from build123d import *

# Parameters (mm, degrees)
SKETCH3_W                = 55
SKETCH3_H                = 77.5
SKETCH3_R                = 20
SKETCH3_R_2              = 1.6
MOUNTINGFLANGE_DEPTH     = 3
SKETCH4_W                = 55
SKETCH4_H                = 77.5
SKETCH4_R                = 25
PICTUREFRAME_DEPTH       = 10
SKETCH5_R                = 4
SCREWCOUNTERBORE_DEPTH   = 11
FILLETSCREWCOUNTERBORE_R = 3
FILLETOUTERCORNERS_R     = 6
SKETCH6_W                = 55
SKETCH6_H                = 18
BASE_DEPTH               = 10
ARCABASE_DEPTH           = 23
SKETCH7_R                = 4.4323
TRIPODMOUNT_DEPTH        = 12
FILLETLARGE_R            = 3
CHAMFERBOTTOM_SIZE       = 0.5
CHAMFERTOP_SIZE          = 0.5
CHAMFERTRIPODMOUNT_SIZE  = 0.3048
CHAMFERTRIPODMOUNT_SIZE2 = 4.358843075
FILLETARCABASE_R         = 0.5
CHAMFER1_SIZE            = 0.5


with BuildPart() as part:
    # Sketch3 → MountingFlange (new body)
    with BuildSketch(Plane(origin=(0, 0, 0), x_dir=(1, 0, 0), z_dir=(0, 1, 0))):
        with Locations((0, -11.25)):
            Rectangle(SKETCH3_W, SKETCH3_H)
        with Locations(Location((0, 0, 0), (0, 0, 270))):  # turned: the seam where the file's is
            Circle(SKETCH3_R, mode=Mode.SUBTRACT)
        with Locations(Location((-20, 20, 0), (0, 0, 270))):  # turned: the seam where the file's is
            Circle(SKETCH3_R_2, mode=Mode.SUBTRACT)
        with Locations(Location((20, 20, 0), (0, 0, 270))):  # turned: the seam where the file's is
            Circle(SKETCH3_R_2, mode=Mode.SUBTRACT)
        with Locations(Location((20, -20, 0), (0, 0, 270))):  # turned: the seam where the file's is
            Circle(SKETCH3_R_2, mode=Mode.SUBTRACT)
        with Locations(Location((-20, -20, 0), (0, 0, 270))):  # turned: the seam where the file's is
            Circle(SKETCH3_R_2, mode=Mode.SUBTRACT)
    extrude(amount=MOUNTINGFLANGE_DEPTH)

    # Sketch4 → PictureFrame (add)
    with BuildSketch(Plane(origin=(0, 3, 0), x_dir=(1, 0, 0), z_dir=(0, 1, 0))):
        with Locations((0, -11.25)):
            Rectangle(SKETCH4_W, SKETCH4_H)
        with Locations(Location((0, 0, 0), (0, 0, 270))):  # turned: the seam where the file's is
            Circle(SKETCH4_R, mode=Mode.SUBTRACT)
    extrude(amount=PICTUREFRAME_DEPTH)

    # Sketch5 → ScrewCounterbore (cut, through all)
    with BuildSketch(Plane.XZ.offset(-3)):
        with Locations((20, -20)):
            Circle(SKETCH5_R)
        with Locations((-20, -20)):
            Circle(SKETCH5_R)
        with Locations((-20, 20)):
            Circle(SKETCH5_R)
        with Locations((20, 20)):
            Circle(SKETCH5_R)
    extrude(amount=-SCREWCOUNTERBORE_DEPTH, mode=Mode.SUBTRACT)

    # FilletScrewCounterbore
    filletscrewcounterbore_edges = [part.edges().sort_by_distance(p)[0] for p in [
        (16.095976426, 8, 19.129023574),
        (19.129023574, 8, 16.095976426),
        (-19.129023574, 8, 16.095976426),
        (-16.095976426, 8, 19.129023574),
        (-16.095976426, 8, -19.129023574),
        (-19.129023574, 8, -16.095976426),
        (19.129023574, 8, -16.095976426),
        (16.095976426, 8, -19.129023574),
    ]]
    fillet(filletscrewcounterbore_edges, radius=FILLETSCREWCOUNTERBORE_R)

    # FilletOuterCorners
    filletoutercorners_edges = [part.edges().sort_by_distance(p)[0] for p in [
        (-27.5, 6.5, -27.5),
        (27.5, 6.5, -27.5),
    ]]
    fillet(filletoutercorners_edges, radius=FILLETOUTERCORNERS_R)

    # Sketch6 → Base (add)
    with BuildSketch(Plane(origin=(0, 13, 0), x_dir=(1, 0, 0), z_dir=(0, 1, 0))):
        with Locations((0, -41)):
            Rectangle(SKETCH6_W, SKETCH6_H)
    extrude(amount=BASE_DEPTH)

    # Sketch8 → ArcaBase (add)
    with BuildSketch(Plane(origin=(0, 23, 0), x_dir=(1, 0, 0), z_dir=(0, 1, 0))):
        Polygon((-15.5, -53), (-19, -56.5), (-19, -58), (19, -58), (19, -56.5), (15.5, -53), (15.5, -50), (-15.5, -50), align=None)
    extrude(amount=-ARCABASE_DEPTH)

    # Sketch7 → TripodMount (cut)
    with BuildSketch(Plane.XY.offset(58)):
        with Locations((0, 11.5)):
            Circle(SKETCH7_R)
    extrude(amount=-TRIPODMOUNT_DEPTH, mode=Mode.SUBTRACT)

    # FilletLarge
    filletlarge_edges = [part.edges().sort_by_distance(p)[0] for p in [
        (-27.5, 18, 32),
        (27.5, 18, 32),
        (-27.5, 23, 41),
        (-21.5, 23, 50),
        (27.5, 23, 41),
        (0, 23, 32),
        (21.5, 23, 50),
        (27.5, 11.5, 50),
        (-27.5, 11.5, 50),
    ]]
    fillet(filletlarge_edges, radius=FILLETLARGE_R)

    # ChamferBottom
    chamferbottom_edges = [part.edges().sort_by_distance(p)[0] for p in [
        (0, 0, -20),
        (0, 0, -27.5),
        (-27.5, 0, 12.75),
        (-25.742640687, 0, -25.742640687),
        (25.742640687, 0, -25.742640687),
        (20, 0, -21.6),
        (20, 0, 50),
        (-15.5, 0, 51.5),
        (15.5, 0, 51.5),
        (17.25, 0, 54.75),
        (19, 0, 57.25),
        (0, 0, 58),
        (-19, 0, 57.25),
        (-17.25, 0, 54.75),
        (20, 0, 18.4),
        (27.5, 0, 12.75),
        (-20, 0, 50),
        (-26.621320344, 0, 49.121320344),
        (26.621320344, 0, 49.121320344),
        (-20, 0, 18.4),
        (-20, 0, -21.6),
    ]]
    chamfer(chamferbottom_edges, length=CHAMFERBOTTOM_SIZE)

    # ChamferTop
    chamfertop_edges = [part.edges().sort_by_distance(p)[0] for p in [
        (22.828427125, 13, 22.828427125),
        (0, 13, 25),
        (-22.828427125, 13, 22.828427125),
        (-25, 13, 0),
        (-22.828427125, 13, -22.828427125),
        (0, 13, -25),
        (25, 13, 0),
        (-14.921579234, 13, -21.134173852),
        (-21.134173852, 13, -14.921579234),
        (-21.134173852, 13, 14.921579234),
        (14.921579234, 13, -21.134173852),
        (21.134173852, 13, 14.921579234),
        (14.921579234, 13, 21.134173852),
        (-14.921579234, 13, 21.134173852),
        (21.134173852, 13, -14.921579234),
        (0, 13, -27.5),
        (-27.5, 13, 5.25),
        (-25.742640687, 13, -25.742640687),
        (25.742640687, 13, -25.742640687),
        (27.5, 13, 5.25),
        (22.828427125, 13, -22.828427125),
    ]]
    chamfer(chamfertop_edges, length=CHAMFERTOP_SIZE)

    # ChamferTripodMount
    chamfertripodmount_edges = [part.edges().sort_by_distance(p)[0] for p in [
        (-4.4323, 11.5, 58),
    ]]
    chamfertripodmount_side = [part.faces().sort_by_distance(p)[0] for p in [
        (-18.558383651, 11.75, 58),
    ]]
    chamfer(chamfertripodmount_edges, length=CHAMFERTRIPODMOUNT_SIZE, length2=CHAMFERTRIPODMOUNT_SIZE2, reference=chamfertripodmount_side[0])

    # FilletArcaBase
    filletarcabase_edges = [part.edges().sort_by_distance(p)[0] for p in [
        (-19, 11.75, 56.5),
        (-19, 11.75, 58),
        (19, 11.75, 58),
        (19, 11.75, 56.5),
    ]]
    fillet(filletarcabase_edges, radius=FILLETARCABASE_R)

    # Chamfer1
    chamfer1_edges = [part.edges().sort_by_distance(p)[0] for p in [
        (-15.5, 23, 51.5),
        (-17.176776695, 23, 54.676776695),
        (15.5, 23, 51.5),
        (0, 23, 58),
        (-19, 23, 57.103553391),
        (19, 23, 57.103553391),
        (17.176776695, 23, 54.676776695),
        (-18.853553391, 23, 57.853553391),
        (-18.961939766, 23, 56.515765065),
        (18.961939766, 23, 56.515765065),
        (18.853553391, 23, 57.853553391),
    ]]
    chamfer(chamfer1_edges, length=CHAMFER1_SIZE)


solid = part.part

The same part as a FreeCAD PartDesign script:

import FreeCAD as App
import Part
import Sketcher
Q = App.Units.Quantity


def edges_at(feature, points):
    """Names of the edges that pass closest to the given points."""
    edges = feature.Shape.Edges
    near = lambda p: min(range(len(edges)), key=lambda i: edges[i].distToShape(Part.Vertex(*p))[0])
    return sorted({f"Edge{near(p) + 1}" for p in points})

doc = App.newDocument("Part")
params = doc.addObject("Spreadsheet::Sheet", "Params")
for row, (alias, value) in enumerate([
    ("sketch1_diameter", "40 mm"),
    ("sketch1_diameter2", "3.2 mm"),
    ("sketch1_width", "55 mm"),
    ("sketch1_height", "77.5 mm"),
    ("pad1_length", "3 mm"),
    ("sketch2_diameter", "50 mm"),
    ("sketch2_width", "55 mm"),
    ("sketch2_height", "77.5 mm"),
    ("pad2_length", "10 mm"),
    ("sketch3_diameter", "8 mm"),
    ("fillet_radius", "3 mm"),
    ("fillet2_radius", "6 mm"),
    ("sketch4_width", "55 mm"),
    ("sketch4_height", "18 mm"),
    ("pad3_length", "10 mm"),
    ("sketch5_width", "38 mm"),
    ("sketch5_width2", "31 mm"),
    ("sketch5_height", "3 mm"),
    ("sketch5_height2", "1.5 mm"),
    ("pad4_length", "23 mm"),
    ("pocket2_length", "12 mm"),
    ("fillet3_radius", "3 mm"),
    ("chamfer_size", "0.5 mm"),
    ("chamfer2_size", "0.5 mm"),
    ("chamfer3_size", "0.3048 mm"),
    ("chamfer3_size2", "4.358843 mm"),
    ("fillet4_radius", "0.5 mm"),
    ("chamfer4_size", "0.5 mm"),
], start=1):
    params.set(f"A{row}", alias)
    params.set(f"B{row}", "=" + value)
    params.setAlias(f"B{row}", alias)

body = doc.addObject("PartDesign::Body", "Body")

# Sketch on XZ plane
sketch1 = body.newObject("Sketcher::SketchObject", "Sketch")
sketch1.AttachmentSupport = (doc.getObject("XZ_Plane"), [""])
sketch1.MapMode = "FlatFace"
sketch1.addGeometry([
    Part.LineSegment(App.Vector(-27.5, -27.5, 0), App.Vector(-27.5, 50, 0)),  # 0
    Part.LineSegment(App.Vector(-27.5, 50, 0), App.Vector(27.5, 50, 0)),  # 1
    Part.LineSegment(App.Vector(27.5, 50, 0), App.Vector(27.5, -27.5, 0)),  # 2
    Part.LineSegment(App.Vector(27.5, -27.5, 0), App.Vector(-27.5, -27.5, 0)),  # 3
    Part.Circle(App.Vector(-20, 20, 0), App.Vector(0, 0, 1), 1.6),  # 4
    Part.Circle(App.Vector(20, 20, 0), App.Vector(0, 0, 1), 1.6),  # 5
    Part.Circle(App.Vector(-20, -20, 0), App.Vector(0, 0, 1), 1.6),  # 6
    Part.Circle(App.Vector(0, 0, 0), App.Vector(0, 0, 1), 20),  # 7
    Part.Circle(App.Vector(20, -20, 0), App.Vector(0, 0, 1), 1.6),  # 8
], False)
sketch1.addConstraint([
    Sketcher.Constraint("Coincident", 0, 2, 1, 1),
    Sketcher.Constraint("Coincident", 1, 2, 2, 1),
    Sketcher.Constraint("Coincident", 2, 2, 3, 1),
    Sketcher.Constraint("Coincident", 3, 2, 0, 1),
    Sketcher.Constraint("Vertical", 0),
    Sketcher.Constraint("Horizontal", 1),
    Sketcher.Constraint("Vertical", 2),
    Sketcher.Constraint("Horizontal", 3),
    Sketcher.Constraint("Coincident", 7, 3, -1, 1),
    Sketcher.Constraint("Equal", 4, 5),
    Sketcher.Constraint("Equal", 5, 6),
    Sketcher.Constraint("Equal", 6, 8),
    Sketcher.Constraint("Symmetric", 5, 3, 6, 3, -1, 1),
    Sketcher.Constraint("Symmetric", 4, 3, 8, 3, -1, 1),
    Sketcher.Constraint("Symmetric", 4, 3, 5, 3, -2),
    Sketcher.Constraint("Diameter", 7, Q("40 mm")),
    Sketcher.Constraint("Diameter", 4, Q("3.2 mm")),
    Sketcher.Constraint("DistanceX", 1, 1, 1, 2, Q("55 mm")),
    Sketcher.Constraint("DistanceY", 0, 1, 0, 2, Q("77.5 mm")),
    Sketcher.Constraint("DistanceX", 4, 3, -1, 1, Q("20 mm")),
    Sketcher.Constraint("DistanceY", -1, 1, 4, 3, Q("20 mm")),
    Sketcher.Constraint("DistanceY", -1, 1, 0, 2, Q("50 mm")),
    Sketcher.Constraint("DistanceX", 0, 2, -1, 1, Q("27.5 mm")),
])
sketch1.setExpression("Constraints[15]", "Params.sketch1_diameter")
sketch1.setExpression("Constraints[16]", "Params.sketch1_diameter2")
sketch1.setExpression("Constraints[17]", "Params.sketch1_width")
sketch1.setExpression("Constraints[18]", "Params.sketch1_height")
pad1 = body.newObject("PartDesign::Pad", "Pad")
pad1.Profile = sketch1
pad1.setExpression("Length", "Params.pad1_length")
pad1.Reversed = True

# Sketch on XZ plane
sketch2 = body.newObject("Sketcher::SketchObject", "Sketch001")
sketch2.AttachmentSupport = (doc.getObject("XZ_Plane"), [""])
sketch2.MapMode = "FlatFace"
sketch2.AttachmentOffset = App.Placement(App.Vector(0, 0, -3), App.Rotation())
sketch2.addGeometry([
    Part.LineSegment(App.Vector(-27.5, -27.5, 0), App.Vector(-27.5, 50, 0)),  # 0
    Part.LineSegment(App.Vector(-27.5, 50, 0), App.Vector(27.5, 50, 0)),  # 1
    Part.LineSegment(App.Vector(27.5, 50, 0), App.Vector(27.5, -27.5, 0)),  # 2
    Part.LineSegment(App.Vector(27.5, -27.5, 0), App.Vector(-27.5, -27.5, 0)),  # 3
    Part.Circle(App.Vector(0, 0, 0), App.Vector(0, 0, 1), 25),  # 4
], False)
sketch2.addConstraint([
    Sketcher.Constraint("Coincident", 0, 2, 1, 1),
    Sketcher.Constraint("Coincident", 1, 2, 2, 1),
    Sketcher.Constraint("Coincident", 2, 2, 3, 1),
    Sketcher.Constraint("Coincident", 3, 2, 0, 1),
    Sketcher.Constraint("Vertical", 0),
    Sketcher.Constraint("Horizontal", 1),
    Sketcher.Constraint("Vertical", 2),
    Sketcher.Constraint("Horizontal", 3),
    Sketcher.Constraint("Coincident", 4, 3, -1, 1),
    Sketcher.Constraint("Diameter", 4, Q("50 mm")),
    Sketcher.Constraint("DistanceX", 1, 1, 1, 2, Q("55 mm")),
    Sketcher.Constraint("DistanceY", 0, 1, 0, 2, Q("77.5 mm")),
    Sketcher.Constraint("DistanceY", -1, 1, 0, 2, Q("50 mm")),
    Sketcher.Constraint("DistanceX", 0, 2, -1, 1, Q("27.5 mm")),
])
sketch2.setExpression("Constraints[9]", "Params.sketch2_diameter")
sketch2.setExpression("Constraints[10]", "Params.sketch2_width")
sketch2.setExpression("Constraints[11]", "Params.sketch2_height")
pad2 = body.newObject("PartDesign::Pad", "Pad001")
pad2.Profile = sketch2
pad2.setExpression("Length", "Params.pad2_length")
pad2.Reversed = True

# Sketch on XZ plane
sketch3 = body.newObject("Sketcher::SketchObject", "Sketch002")
sketch3.AttachmentSupport = (doc.getObject("XZ_Plane"), [""])
sketch3.MapMode = "FlatFace"
sketch3.AttachmentOffset = App.Placement(App.Vector(0, 0, -3), App.Rotation())
sketch3.addGeometry([
    Part.Circle(App.Vector(20, -20, 0), App.Vector(0, 0, 1), 4),
    Part.Circle(App.Vector(-20, -20, 0), App.Vector(0, 0, 1), 4),
    Part.Circle(App.Vector(-20, 20, 0), App.Vector(0, 0, 1), 4),
    Part.Circle(App.Vector(20, 20, 0), App.Vector(0, 0, 1), 4),
], False)
sketch3.addConstraint([
    Sketcher.Constraint("Equal", 0, 1),
    Sketcher.Constraint("Equal", 1, 2),
    Sketcher.Constraint("Equal", 2, 3),
    Sketcher.Constraint("Symmetric", 0, 3, 2, 3, -1, 1),
    Sketcher.Constraint("Symmetric", 1, 3, 3, 3, -1, 1),
    Sketcher.Constraint("Symmetric", 0, 3, 1, 3, -2),
    Sketcher.Constraint("Diameter", 0, Q("8 mm")),
    Sketcher.Constraint("DistanceX", -1, 1, 0, 3, Q("20 mm")),
    Sketcher.Constraint("DistanceY", 0, 3, -1, 1, Q("20 mm")),
])
sketch3.setExpression("Constraints[6]", "Params.sketch3_diameter")
pocket1 = body.newObject("PartDesign::Pocket", "Pocket")
pocket1.Profile = sketch3
pocket1.Type = "ThroughAll"
doc.recompute()

fillet = body.newObject("PartDesign::Fillet", "Fillet")
fillet.Base = (pocket1, edges_at(pocket1, [
    (16.096, 8, 19.129),
    (19.129, 8, 16.096),
    (-19.129, 8, 16.096),
    (-16.096, 8, 19.129),
    (-16.096, 8, -19.129),
    (-19.129, 8, -16.096),
    (19.129, 8, -16.096),
    (16.096, 8, -19.129),
]))
fillet.setExpression("Radius", "Params.fillet_radius")
doc.recompute()

fillet2 = body.newObject("PartDesign::Fillet", "Fillet001")
fillet2.Base = (fillet, edges_at(fillet, [(-27.5, 6.5, -27.5), (27.5, 6.5, -27.5)]))
fillet2.setExpression("Radius", "Params.fillet2_radius")

# Sketch on XZ plane
sketch4 = body.newObject("Sketcher::SketchObject", "Sketch003")
sketch4.AttachmentSupport = (doc.getObject("XZ_Plane"), [""])
sketch4.MapMode = "FlatFace"
sketch4.AttachmentOffset = App.Placement(App.Vector(0, 0, -13), App.Rotation())
sketch4.addGeometry([
    Part.LineSegment(App.Vector(-27.5, 32, 0), App.Vector(-27.5, 50, 0)),
    Part.LineSegment(App.Vector(-27.5, 50, 0), App.Vector(27.5, 50, 0)),
    Part.LineSegment(App.Vector(27.5, 50, 0), App.Vector(27.5, 32, 0)),
    Part.LineSegment(App.Vector(27.5, 32, 0), App.Vector(-27.5, 32, 0)),
], False)
sketch4.addConstraint([
    Sketcher.Constraint("Coincident", 0, 2, 1, 1),
    Sketcher.Constraint("Coincident", 1, 2, 2, 1),
    Sketcher.Constraint("Coincident", 2, 2, 3, 1),
    Sketcher.Constraint("Coincident", 3, 2, 0, 1),
    Sketcher.Constraint("Vertical", 0),
    Sketcher.Constraint("Horizontal", 1),
    Sketcher.Constraint("Vertical", 2),
    Sketcher.Constraint("Horizontal", 3),
    Sketcher.Constraint("DistanceX", 1, 1, 1, 2, Q("55 mm")),
    Sketcher.Constraint("DistanceY", 0, 1, 0, 2, Q("18 mm")),
    Sketcher.Constraint("DistanceY", -1, 1, 0, 2, Q("50 mm")),
    Sketcher.Constraint("DistanceX", 0, 2, -1, 1, Q("27.5 mm")),
])
sketch4.setExpression("Constraints[8]", "Params.sketch4_width")
sketch4.setExpression("Constraints[9]", "Params.sketch4_height")
pad3 = body.newObject("PartDesign::Pad", "Pad002")
pad3.Profile = sketch4
pad3.setExpression("Length", "Params.pad3_length")
pad3.Reversed = True

# Sketch on XZ plane
sketch5 = body.newObject("Sketcher::SketchObject", "Sketch004")
sketch5.AttachmentSupport = (doc.getObject("XZ_Plane"), [""])
sketch5.MapMode = "FlatFace"
sketch5.AttachmentOffset = App.Placement(App.Vector(0, 0, -23), App.Rotation())
sketch5.addGeometry([
    Part.LineSegment(App.Vector(-15.5, 53, 0), App.Vector(-19, 56.5, 0)),  # 0
    Part.LineSegment(App.Vector(-19, 56.5, 0), App.Vector(-19, 58, 0)),  # 1
    Part.LineSegment(App.Vector(-19, 58, 0), App.Vector(19, 58, 0)),  # 2
    Part.LineSegment(App.Vector(19, 58, 0), App.Vector(19, 56.5, 0)),  # 3
    Part.LineSegment(App.Vector(19, 56.5, 0), App.Vector(15.5, 53, 0)),  # 4
    Part.LineSegment(App.Vector(15.5, 53, 0), App.Vector(15.5, 50, 0)),  # 5
    Part.LineSegment(App.Vector(15.5, 50, 0), App.Vector(-15.5, 50, 0)),  # 6
    Part.LineSegment(App.Vector(-15.5, 50, 0), App.Vector(-15.5, 53, 0)),  # 7
], False)
sketch5.addConstraint([
    Sketcher.Constraint("Coincident", 0, 2, 1, 1),
    Sketcher.Constraint("Coincident", 1, 2, 2, 1),
    Sketcher.Constraint("Coincident", 2, 2, 3, 1),
    Sketcher.Constraint("Coincident", 3, 2, 4, 1),
    Sketcher.Constraint("Coincident", 4, 2, 5, 1),
    Sketcher.Constraint("Coincident", 5, 2, 6, 1),
    Sketcher.Constraint("Coincident", 6, 2, 7, 1),
    Sketcher.Constraint("Coincident", 7, 2, 0, 1),
    Sketcher.Constraint("Vertical", 1),
    Sketcher.Constraint("Horizontal", 2),
    Sketcher.Constraint("Vertical", 3),
    Sketcher.Constraint("Vertical", 5),
    Sketcher.Constraint("Horizontal", 6),
    Sketcher.Constraint("Vertical", 7),
    Sketcher.Constraint("Symmetric", 0, 2, 3, 2, -2),
    Sketcher.Constraint("Symmetric", 4, 2, 7, 2, -2),
    Sketcher.Constraint("Perpendicular", 0, 4),
    Sketcher.Constraint("DistanceX", 2, 1, 2, 2, Q("38 mm")),
    Sketcher.Constraint("DistanceX", 6, 2, 6, 1, Q("31 mm")),
    Sketcher.Constraint("DistanceY", 5, 2, 5, 1, Q("3 mm")),
    Sketcher.Constraint("DistanceY", 1, 1, 1, 2, Q("1.5 mm")),
    Sketcher.Constraint("DistanceY", -1, 1, 1, 2, Q("58 mm")),
])
sketch5.setExpression("Constraints[17]", "Params.sketch5_width")
sketch5.setExpression("Constraints[18]", "Params.sketch5_width2")
sketch5.setExpression("Constraints[19]", "Params.sketch5_height")
sketch5.setExpression("Constraints[20]", "Params.sketch5_height2")
pad4 = body.newObject("PartDesign::Pad", "Pad003")
pad4.Profile = sketch5
pad4.setExpression("Length", "Params.pad4_length")

# Sketch on XY plane
sketch6 = body.newObject("Sketcher::SketchObject", "Sketch005")
sketch6.AttachmentSupport = (doc.getObject("XY_Plane"), [""])
sketch6.MapMode = "FlatFace"
sketch6.AttachmentOffset = App.Placement(App.Vector(0, 0, 58), App.Rotation())
sketch6.addGeometry(Part.Circle(App.Vector(0, 11.5, 0), App.Vector(0, 0, 1), 4.4323), False)
sketch6.addConstraint([
    Sketcher.Constraint("PointOnObject", 0, 3, -2),
    Sketcher.Constraint("Diameter", 0, Q("8.8646 mm")),
    Sketcher.Constraint("DistanceY", -1, 1, 0, 3, Q("11.5 mm")),
])
pocket2 = body.newObject("PartDesign::Pocket", "Pocket001")
pocket2.Profile = sketch6
pocket2.setExpression("Length", "Params.pocket2_length")
doc.recompute()

fillet3 = body.newObject("PartDesign::Fillet", "Fillet002")
fillet3.Base = (pocket2, edges_at(pocket2, [
    (-27.5, 18, 32),
    (27.5, 18, 32),
    (-27.5, 23, 41),
    (-21.5, 23, 50),
    (27.5, 23, 41),
    (0, 23, 32),
    (21.5, 23, 50),
    (27.5, 11.5, 50),
    (-27.5, 11.5, 50),
]))
fillet3.setExpression("Radius", "Params.fillet3_radius")
doc.recompute()

chamfer = body.newObject("PartDesign::Chamfer", "Chamfer")
chamfer.Base = (fillet3, edges_at(fillet3, [
    (0, 0, -20),
    (0, 0, -27.5),
    (-27.5, 0, 12.75),
    (-25.743, 0, -25.743),
    (25.743, 0, -25.743),
    (20, 0, -21.6),
    (20, 0, 50),
    (-15.5, 0, 51.5),
    (15.5, 0, 51.5),
    (17.25, 0, 54.75),
    (19, 0, 57.25),
    (0, 0, 58),
    (-19, 0, 57.25),
    (-17.25, 0, 54.75),
    (20, 0, 18.4),
    (27.5, 0, 12.75),
    (-20, 0, 50),
    (-26.621, 0, 49.121),
    (26.621, 0, 49.121),
    (-20, 0, 18.4),
    (-20, 0, -21.6),
]))
chamfer.setExpression("Size", "Params.chamfer_size")
doc.recompute()

chamfer2 = body.newObject("PartDesign::Chamfer", "Chamfer001")
chamfer2.Base = (chamfer, edges_at(chamfer, [
    (22.828, 13, 22.828),
    (0, 13, 25),
    (-22.828, 13, 22.828),
    (-25, 13, 0),
    (-22.828, 13, -22.828),
    (0, 13, -25),
    (25, 13, 0),
    (-14.922, 13, -21.134),
    (-21.134, 13, -14.922),
    (-21.134, 13, 14.922),
    (14.922, 13, -21.134),
    (21.134, 13, 14.922),
    (14.922, 13, 21.134),
    (-14.922, 13, 21.134),
    (21.134, 13, -14.922),
    (0, 13, -27.5),
    (-27.5, 13, 6.75),
    (-25.743, 13, -25.743),
    (25.743, 13, -25.743),
    (27.5, 13, 6.75),
    (22.828, 13, -22.828),
]))
chamfer2.setExpression("Size", "Params.chamfer2_size")
doc.recompute()

chamfer3 = body.newObject("PartDesign::Chamfer", "Chamfer002")
chamfer3.Base = (chamfer2, edges_at(chamfer2, [(-4.432, 11.5, 58)]))
chamfer3.ChamferType = "Two distances"
chamfer3.setExpression("Size", "Params.chamfer3_size")
chamfer3.setExpression("Size2", "Params.chamfer3_size2")
doc.recompute()

fillet4 = body.newObject("PartDesign::Fillet", "Fillet003")
fillet4.Base = (chamfer3, edges_at(chamfer3, [
    (-19, 11.75, 56.5),
    (-19, 11.75, 58),
    (19, 11.75, 58),
    (19, 11.75, 56.5),
]))
fillet4.setExpression("Radius", "Params.fillet4_radius")
doc.recompute()

chamfer4 = body.newObject("PartDesign::Chamfer", "Chamfer003")
chamfer4.Base = (fillet4, edges_at(fillet4, [
    (-15.5, 23, 50),
    (-17.177, 23, 54.677),
    (15.5, 23, 50),
    (0, 23, 58),
    (-19, 23, 57.104),
    (19, 23, 57.104),
    (17.177, 23, 54.677),
    (-18.854, 23, 57.854),
    (-18.962, 23, 56.516),
    (18.962, 23, 56.516),
    (18.854, 23, 57.854),
]))
chamfer4.setExpression("Size", "Params.chamfer4_size")

doc.recompute()
